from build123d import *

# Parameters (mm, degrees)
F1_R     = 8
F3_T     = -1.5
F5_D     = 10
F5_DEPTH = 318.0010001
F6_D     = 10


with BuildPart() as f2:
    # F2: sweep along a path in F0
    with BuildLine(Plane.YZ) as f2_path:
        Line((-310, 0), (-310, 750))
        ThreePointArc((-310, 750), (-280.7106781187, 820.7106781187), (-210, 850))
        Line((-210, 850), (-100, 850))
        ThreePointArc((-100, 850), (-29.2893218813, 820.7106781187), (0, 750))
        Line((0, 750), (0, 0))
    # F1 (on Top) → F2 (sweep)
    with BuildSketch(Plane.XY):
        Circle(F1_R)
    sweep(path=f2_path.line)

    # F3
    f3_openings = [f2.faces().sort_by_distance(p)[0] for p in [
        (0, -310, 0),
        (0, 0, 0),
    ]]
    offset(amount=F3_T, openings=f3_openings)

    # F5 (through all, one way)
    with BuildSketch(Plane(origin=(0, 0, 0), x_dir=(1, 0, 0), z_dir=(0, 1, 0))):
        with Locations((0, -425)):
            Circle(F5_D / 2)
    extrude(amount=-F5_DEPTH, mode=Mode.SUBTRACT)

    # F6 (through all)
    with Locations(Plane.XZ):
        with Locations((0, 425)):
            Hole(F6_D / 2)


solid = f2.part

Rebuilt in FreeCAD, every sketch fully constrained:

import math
import FreeCAD as App
import Part
import Sketcher
from FreeCAD import Vector


def faces_at(feature, points):
    """Names of the faces that lie closest to the given points."""
    faces = feature.Shape.Faces
    near = lambda p: min(range(len(faces)), key=lambda i: faces[i].distToShape(Part.Vertex(*p))[0])
    return sorted({f"Face{near(p) + 1}" for p in points})

doc = App.newDocument("Part")
body = doc.addObject("PartDesign::Body", "Body")

sketch1 = body.newObject("Sketcher::SketchObject", "Sketch")
sketch1.AttachmentSupport = (doc.getObject("XY_Plane"), [""])
sketch1.MapMode = "FlatFace"
sketch1.addGeometry(Part.Circle(Vector(0, 0, 0), Vector(0, 0, 1), 8), False)
sketch1.addConstraint(Sketcher.Constraint("Coincident", 0, 3, -1, 1))
sketch1.addConstraint(Sketcher.Constraint("Diameter", 0, 16.0))

sketch2 = body.newObject("Sketcher::SketchObject", "Sketch001")
sketch2.AttachmentSupport = (doc.getObject("YZ_Plane"), [""])
sketch2.MapMode = "FlatFace"
sketch2.addGeometry(Part.LineSegment(Vector(-310, 0, 0), Vector(-310, 750, 0)), False)
sketch2.addGeometry(Part.ArcOfCircle(Part.Circle(Vector(-210, 750, 0), Vector(0, 0, 1), 100), math.radians(90), math.radians(180)), False)
sketch2.addGeometry(Part.LineSegment(Vector(-210, 850, 0), Vector(-100, 850, 0)), False)
sketch2.addGeometry(Part.ArcOfCircle(Part.Circle(Vector(-100, 750, 0), Vector(0, 0, 1), 100), math.radians(0), math.radians(90)), False)
sketch2.addGeometry(Part.LineSegment(Vector(0, 750, 0), Vector(0, 0, 0)), False)
sketch2.addConstraint(Sketcher.Constraint("Tangent", 0, 2, 1, 2))
sketch2.addConstraint(Sketcher.Constraint("Tangent", 1, 1, 2, 1))
sketch2.addConstraint(Sketcher.Constraint("Tangent", 2, 2, 3, 2))
sketch2.addConstraint(Sketcher.Constraint("Tangent", 3, 1, 4, 1))
sketch2.addConstraint(Sketcher.Constraint("Vertical", 0))
sketch2.addConstraint(Sketcher.Constraint("Horizontal", 2))
sketch2.addConstraint(Sketcher.Constraint("Vertical", 4))
sketch2.addConstraint(Sketcher.Constraint("Coincident", 4, 2, -1, 1))
sketch2.addConstraint(Sketcher.Constraint("Equal", 1, 3))
sketch2.addConstraint(Sketcher.Constraint("PointOnObject", 0, 1, -1))
sketch2.addConstraint(Sketcher.Constraint("Radius", 1, 100.0))
sketch2.addConstraint(Sketcher.Constraint("DistanceX", 2, 1, 2, 2, 110.0))
sketch2.addConstraint(Sketcher.Constraint("DistanceY", 0, 1, 0, 2, 750.0))
doc.recompute()

additivepipe = body.newObject("PartDesign::AdditivePipe", "AdditivePipe")
additivepipe.Profile = sketch1
additivepipe.Spine = (sketch2, ["Edge1", "Edge2", "Edge3", "Edge4", "Edge5"])
doc.recompute()

thickness = body.newObject("PartDesign::Thickness", "Thickness")
thickness.Base = (additivepipe, faces_at(additivepipe, [(0, -310, 0), (0, 0, 0)]))
thickness.Value = 1.5
thickness.Reversed = True
thickness.Join = "Arc"

sketch3 = body.newObject("Sketcher::SketchObject", "Sketch002")
sketch3.AttachmentSupport = (doc.getObject("XZ_Plane"), [""])
sketch3.MapMode = "FlatFace"
sketch3.addGeometry(Part.Circle(Vector(0, 425, 0), Vector(0, 0, 1), 5), False)
sketch3.addConstraint(Sketcher.Constraint("PointOnObject", 0, 3, -2))
sketch3.addConstraint(Sketcher.Constraint("Diameter", 0, 10.0))
sketch3.addConstraint(Sketcher.Constraint("DistanceY", -1, 1, 0, 3, 425.0))
pocket1 = body.newObject("PartDesign::Pocket", "Pocket")
pocket1.Profile = sketch3
pocket1.Type = "ThroughAll"
pocket1.Reversed = True

sketch4 = body.newObject("Sketcher::SketchObject", "Sketch003")
sketch4.AttachmentSupport = (doc.getObject("XZ_Plane"), [""])
sketch4.MapMode = "FlatFace"
sketch4.addGeometry(Part.Circle(Vector(0, 425, 0), Vector(0, 0, 1), 5), False)
sketch4.addConstraint(Sketcher.Constraint("PointOnObject", 0, 3, -2))
sketch4.addConstraint(Sketcher.Constraint("Diameter", 0, 10.0))
sketch4.addConstraint(Sketcher.Constraint("DistanceY", -1, 1, 0, 3, 425.0))
doc.recompute()
hole = body.newObject("PartDesign::Hole", "Hole")
hole.Profile = sketch4
hole.ThreadType = "None"
hole.Diameter = 10
hole.DepthType = "ThroughAll"

doc.recompute()
